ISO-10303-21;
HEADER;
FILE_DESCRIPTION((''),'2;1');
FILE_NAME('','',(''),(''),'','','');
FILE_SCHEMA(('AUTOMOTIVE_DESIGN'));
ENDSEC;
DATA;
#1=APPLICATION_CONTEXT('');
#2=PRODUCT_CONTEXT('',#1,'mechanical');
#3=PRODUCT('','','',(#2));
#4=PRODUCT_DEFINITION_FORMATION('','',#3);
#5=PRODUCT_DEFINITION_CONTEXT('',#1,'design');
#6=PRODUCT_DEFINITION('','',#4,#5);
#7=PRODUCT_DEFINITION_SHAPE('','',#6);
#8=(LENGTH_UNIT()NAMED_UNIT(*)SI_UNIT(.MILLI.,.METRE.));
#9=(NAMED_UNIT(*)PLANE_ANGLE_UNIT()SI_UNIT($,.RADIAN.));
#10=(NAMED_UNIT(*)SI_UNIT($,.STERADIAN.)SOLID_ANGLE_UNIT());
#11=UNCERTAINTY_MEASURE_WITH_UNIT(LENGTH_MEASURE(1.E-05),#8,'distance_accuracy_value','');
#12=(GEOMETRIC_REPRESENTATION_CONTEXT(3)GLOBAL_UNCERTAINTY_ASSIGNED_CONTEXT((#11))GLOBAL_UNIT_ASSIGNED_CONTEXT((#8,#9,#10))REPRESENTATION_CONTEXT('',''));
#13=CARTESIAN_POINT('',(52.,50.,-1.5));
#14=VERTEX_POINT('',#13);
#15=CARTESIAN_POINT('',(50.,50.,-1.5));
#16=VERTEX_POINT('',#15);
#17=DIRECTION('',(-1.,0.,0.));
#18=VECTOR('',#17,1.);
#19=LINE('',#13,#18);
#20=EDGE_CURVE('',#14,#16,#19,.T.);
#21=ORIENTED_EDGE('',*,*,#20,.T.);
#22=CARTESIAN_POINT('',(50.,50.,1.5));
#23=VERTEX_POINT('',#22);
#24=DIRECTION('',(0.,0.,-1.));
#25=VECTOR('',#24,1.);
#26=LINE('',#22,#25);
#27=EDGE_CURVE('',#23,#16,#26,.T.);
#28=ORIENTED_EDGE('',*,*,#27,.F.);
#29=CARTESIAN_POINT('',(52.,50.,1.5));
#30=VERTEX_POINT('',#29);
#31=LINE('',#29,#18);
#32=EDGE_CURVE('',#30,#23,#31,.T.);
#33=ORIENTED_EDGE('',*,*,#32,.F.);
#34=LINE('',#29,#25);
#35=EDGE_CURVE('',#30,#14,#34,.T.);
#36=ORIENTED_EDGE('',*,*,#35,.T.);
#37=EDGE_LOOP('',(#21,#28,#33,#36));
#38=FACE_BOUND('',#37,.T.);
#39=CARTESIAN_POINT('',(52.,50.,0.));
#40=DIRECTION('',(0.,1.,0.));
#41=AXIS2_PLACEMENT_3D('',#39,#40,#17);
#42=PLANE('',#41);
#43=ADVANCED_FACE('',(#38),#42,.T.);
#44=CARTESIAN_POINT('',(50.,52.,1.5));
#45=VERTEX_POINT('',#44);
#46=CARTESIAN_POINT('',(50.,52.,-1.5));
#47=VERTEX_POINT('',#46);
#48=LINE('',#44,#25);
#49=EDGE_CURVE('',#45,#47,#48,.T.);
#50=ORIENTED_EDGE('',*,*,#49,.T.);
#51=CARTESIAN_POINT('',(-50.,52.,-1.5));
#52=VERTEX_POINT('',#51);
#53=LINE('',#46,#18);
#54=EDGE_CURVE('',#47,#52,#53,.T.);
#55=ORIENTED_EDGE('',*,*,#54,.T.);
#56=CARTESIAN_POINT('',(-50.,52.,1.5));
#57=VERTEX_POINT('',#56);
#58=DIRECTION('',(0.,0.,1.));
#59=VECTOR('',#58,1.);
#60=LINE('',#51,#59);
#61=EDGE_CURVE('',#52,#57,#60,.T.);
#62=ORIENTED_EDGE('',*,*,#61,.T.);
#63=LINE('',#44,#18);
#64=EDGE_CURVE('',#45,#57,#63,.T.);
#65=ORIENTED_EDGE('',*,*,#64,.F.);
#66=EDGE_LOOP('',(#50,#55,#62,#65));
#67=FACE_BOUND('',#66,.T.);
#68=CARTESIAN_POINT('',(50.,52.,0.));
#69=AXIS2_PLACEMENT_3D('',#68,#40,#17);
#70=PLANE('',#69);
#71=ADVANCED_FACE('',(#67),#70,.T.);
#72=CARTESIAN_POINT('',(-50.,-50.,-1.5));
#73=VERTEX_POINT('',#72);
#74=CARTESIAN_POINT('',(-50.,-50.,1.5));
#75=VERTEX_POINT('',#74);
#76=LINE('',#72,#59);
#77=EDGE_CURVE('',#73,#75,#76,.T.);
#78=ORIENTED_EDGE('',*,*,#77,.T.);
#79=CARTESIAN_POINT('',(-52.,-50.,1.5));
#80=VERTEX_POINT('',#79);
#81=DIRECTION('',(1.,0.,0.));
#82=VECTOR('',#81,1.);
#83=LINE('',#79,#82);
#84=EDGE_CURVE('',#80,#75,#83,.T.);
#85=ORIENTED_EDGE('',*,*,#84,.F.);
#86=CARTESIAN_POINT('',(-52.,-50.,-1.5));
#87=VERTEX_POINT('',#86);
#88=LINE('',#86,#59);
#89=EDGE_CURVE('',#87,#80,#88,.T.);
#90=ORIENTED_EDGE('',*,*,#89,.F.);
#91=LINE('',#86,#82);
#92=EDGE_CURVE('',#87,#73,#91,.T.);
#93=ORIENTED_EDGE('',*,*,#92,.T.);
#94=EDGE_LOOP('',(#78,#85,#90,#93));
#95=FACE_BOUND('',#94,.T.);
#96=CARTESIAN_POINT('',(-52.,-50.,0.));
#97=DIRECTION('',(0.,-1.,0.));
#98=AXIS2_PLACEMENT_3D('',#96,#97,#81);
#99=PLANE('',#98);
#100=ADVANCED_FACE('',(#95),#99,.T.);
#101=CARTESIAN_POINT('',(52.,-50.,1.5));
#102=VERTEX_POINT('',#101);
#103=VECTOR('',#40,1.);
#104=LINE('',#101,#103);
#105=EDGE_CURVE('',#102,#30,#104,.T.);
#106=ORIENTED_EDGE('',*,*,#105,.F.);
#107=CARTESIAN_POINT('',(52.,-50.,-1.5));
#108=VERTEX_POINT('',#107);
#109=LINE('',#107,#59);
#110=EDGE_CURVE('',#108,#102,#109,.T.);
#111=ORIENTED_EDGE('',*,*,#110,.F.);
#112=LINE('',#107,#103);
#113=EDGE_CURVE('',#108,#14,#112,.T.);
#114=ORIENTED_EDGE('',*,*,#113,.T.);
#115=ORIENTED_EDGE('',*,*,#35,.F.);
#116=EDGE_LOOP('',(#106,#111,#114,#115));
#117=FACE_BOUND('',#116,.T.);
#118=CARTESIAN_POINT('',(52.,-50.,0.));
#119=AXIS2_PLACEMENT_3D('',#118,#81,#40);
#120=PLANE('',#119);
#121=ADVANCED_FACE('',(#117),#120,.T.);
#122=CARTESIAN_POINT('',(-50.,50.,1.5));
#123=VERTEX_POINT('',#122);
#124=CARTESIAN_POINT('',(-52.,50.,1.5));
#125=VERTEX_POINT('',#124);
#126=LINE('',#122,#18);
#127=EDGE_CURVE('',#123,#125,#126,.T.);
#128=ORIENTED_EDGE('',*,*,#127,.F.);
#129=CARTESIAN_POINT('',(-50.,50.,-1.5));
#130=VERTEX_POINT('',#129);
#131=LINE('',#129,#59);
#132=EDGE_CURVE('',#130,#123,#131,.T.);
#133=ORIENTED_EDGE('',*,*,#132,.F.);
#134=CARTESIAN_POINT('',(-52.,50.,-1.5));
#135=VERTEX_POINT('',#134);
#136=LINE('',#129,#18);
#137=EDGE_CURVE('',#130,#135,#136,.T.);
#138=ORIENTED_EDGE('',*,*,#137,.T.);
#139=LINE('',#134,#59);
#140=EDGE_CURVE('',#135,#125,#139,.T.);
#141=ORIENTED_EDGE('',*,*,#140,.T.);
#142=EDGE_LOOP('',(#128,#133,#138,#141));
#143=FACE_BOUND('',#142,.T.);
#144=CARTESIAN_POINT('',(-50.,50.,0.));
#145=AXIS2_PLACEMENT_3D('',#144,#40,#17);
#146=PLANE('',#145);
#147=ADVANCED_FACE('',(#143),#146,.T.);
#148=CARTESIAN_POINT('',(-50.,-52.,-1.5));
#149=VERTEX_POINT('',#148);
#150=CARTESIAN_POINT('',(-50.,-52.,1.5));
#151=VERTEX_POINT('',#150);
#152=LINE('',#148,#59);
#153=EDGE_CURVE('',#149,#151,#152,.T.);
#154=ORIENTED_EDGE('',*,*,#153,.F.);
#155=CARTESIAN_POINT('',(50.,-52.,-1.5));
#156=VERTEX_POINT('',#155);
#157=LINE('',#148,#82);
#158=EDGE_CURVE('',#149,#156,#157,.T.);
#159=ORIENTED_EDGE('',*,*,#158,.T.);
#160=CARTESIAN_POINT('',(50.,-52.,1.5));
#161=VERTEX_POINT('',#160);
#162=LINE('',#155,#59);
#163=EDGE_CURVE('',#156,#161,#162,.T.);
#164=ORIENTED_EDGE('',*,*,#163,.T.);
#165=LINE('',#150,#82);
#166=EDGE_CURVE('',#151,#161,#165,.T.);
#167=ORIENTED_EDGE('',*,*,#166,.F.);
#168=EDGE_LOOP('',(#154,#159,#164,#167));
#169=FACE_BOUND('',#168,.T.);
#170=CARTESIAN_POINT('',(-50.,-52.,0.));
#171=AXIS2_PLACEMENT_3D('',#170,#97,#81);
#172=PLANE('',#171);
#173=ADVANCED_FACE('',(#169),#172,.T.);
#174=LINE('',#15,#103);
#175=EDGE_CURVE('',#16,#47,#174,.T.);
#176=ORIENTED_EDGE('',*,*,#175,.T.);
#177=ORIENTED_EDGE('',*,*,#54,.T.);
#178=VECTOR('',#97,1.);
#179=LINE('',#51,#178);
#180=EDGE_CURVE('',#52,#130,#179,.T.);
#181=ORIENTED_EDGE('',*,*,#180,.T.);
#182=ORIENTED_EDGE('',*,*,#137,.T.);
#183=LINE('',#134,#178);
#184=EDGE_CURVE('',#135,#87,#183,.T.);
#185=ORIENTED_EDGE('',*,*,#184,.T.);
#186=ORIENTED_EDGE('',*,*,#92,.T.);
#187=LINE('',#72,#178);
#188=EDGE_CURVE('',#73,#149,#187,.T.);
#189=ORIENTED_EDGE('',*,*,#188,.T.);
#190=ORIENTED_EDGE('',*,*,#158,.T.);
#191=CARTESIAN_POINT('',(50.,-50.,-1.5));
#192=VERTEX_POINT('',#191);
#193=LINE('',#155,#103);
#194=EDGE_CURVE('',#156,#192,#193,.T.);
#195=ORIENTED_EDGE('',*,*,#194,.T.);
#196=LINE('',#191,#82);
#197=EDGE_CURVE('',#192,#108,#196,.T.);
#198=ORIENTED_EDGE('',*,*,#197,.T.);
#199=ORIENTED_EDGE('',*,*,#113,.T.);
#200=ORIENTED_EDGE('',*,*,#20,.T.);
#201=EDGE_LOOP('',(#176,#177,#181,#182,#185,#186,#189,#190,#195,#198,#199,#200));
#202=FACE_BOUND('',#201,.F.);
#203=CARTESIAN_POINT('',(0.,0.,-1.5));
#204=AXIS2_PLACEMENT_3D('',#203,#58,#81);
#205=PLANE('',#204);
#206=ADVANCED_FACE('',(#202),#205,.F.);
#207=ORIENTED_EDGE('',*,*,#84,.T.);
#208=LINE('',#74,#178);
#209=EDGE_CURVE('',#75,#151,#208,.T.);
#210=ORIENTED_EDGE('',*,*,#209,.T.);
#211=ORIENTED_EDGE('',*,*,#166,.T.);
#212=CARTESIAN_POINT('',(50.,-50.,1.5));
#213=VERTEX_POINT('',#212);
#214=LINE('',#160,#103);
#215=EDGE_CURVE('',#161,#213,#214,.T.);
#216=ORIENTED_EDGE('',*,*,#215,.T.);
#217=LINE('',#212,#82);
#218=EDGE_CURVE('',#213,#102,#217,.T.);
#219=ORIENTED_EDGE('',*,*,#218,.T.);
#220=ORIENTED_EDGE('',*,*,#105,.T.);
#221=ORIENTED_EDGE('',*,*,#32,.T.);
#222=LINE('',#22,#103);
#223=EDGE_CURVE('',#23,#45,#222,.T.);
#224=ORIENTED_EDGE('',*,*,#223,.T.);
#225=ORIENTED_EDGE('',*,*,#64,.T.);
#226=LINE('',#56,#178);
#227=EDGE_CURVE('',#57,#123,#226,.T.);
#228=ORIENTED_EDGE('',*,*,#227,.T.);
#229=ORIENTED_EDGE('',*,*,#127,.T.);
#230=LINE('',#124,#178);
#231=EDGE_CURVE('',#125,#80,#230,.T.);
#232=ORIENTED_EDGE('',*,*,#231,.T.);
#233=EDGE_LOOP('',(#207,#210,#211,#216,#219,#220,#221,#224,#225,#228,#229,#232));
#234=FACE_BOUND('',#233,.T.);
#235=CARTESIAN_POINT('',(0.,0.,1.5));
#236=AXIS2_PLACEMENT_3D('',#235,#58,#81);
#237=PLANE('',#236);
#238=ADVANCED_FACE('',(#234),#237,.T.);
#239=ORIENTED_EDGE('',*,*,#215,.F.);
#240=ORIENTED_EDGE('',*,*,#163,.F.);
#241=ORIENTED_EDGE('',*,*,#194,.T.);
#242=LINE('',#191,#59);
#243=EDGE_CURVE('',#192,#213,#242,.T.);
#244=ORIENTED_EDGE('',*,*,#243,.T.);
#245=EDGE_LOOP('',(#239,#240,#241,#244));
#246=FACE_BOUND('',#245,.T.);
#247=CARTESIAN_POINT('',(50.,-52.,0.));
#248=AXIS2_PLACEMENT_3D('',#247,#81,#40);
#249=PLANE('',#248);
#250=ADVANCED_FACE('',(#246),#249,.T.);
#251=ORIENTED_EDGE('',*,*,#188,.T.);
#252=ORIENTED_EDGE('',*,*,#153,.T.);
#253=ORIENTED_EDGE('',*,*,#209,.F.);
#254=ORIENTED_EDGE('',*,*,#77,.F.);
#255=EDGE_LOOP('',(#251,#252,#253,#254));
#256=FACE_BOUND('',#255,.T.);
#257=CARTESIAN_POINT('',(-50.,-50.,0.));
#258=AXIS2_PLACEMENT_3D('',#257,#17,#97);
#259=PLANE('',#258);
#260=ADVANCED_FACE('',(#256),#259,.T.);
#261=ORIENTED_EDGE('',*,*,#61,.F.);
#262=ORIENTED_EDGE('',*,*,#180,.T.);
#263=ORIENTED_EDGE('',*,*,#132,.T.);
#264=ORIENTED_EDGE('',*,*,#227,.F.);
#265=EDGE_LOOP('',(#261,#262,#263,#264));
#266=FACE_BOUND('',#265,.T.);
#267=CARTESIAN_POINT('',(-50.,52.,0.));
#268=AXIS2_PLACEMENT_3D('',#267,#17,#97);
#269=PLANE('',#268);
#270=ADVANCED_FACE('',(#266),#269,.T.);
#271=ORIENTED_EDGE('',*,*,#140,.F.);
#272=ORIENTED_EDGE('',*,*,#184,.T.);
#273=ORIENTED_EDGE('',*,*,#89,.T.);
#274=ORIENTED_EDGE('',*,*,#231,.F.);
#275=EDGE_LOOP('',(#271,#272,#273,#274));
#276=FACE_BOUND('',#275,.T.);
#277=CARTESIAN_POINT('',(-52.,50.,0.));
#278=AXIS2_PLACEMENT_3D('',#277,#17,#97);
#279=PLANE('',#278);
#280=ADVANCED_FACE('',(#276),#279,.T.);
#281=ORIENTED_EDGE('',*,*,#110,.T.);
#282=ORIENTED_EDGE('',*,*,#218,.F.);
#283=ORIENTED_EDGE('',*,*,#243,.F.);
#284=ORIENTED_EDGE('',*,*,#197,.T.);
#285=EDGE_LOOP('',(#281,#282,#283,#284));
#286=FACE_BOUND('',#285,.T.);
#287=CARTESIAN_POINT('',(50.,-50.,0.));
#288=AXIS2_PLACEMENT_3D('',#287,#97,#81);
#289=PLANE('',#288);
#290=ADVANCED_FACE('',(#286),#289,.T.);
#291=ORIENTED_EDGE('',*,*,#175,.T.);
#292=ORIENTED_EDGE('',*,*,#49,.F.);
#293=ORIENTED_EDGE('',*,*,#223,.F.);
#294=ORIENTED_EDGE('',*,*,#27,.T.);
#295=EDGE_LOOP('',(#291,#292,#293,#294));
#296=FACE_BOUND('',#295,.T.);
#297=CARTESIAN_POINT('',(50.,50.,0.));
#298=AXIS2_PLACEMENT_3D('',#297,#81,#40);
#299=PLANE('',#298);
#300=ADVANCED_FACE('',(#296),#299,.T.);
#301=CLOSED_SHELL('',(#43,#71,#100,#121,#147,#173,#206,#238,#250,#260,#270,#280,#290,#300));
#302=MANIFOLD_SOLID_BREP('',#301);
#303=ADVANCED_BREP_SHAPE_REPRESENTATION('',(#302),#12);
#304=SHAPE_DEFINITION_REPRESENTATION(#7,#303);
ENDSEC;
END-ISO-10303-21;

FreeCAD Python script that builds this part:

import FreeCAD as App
import Part
import Sketcher
from FreeCAD import Vector


def add_polygon(sketch, points):
    """Adds a closed chain of lines whose ends are joined by coincident constraints."""
    first, n = sketch.GeometryCount, len(points)
    for a, b in zip(points, points[1:] + points[:1]):
        sketch.addGeometry(Part.LineSegment(App.Vector(*a, 0), App.Vector(*b, 0)), False)
    for i in range(n):
        sketch.addConstraint(Sketcher.Constraint("Coincident", first + i, 2, first + (i + 1) % n, 1))

doc = App.newDocument("Part")
body = doc.addObject("PartDesign::Body", "Body")

# Sketch on XY plane
sketch1 = body.newObject("Sketcher::SketchObject", "Sketch")
sketch1.AttachmentSupport = (doc.getObject("XY_Plane"), [""])
sketch1.MapMode = "FlatFace"
add_polygon(sketch1, [(50, 52), (-50, 52), (-50, 50), (-52, 50), (-52, -50), (-50, -50), (-50, -52), (50, -52), (50, -50), (52, -50), (52, 50), (50, 50)])  # lines 0-11
sketch1.addConstraint(Sketcher.Constraint("Horizontal", 0))
sketch1.addConstraint(Sketcher.Constraint("Vertical", 1))
sketch1.addConstraint(Sketcher.Constraint("Horizontal", 2))
sketch1.addConstraint(Sketcher.Constraint("Vertical", 3))
sketch1.addConstraint(Sketcher.Constraint("Horizontal", 4))
sketch1.addConstraint(Sketcher.Constraint("Vertical", 5))
sketch1.addConstraint(Sketcher.Constraint("Horizontal", 6))
sketch1.addConstraint(Sketcher.Constraint("Vertical", 7))
sketch1.addConstraint(Sketcher.Constraint("Horizontal", 8))
sketch1.addConstraint(Sketcher.Constraint("Vertical", 9))
sketch1.addConstraint(Sketcher.Constraint("Horizontal", 10))
sketch1.addConstraint(Sketcher.Constraint("Vertical", 11))
sketch1.addConstraint(Sketcher.Constraint("Symmetric", 0, 2, 6, 2, -1, 1))
sketch1.addConstraint(Sketcher.Constraint("Symmetric", 2, 2, 8, 2, -1, 1))
sketch1.addConstraint(Sketcher.Constraint("Symmetric", 4, 2, 10, 2, -1, 1))
sketch1.addConstraint(Sketcher.Constraint("Symmetric", 4, 2, 7, 2, -2))
sketch1.addConstraint(Sketcher.Constraint("Equal", 10, 1))
sketch1.addConstraint(Sketcher.Constraint("Equal", 6, 3))
sketch1.addConstraint(Sketcher.Constraint("DistanceX", 0, 2, 0, 1, 100.0))
sketch1.addConstraint(Sketcher.Constraint("DistanceX", 2, 2, 2, 1, 2.0))
pad1 = body.newObject("PartDesign::Pad", "Pad")
pad1.Profile = sketch1
pad1.Length = 3
pad1.Midplane = True

doc.recompute()
